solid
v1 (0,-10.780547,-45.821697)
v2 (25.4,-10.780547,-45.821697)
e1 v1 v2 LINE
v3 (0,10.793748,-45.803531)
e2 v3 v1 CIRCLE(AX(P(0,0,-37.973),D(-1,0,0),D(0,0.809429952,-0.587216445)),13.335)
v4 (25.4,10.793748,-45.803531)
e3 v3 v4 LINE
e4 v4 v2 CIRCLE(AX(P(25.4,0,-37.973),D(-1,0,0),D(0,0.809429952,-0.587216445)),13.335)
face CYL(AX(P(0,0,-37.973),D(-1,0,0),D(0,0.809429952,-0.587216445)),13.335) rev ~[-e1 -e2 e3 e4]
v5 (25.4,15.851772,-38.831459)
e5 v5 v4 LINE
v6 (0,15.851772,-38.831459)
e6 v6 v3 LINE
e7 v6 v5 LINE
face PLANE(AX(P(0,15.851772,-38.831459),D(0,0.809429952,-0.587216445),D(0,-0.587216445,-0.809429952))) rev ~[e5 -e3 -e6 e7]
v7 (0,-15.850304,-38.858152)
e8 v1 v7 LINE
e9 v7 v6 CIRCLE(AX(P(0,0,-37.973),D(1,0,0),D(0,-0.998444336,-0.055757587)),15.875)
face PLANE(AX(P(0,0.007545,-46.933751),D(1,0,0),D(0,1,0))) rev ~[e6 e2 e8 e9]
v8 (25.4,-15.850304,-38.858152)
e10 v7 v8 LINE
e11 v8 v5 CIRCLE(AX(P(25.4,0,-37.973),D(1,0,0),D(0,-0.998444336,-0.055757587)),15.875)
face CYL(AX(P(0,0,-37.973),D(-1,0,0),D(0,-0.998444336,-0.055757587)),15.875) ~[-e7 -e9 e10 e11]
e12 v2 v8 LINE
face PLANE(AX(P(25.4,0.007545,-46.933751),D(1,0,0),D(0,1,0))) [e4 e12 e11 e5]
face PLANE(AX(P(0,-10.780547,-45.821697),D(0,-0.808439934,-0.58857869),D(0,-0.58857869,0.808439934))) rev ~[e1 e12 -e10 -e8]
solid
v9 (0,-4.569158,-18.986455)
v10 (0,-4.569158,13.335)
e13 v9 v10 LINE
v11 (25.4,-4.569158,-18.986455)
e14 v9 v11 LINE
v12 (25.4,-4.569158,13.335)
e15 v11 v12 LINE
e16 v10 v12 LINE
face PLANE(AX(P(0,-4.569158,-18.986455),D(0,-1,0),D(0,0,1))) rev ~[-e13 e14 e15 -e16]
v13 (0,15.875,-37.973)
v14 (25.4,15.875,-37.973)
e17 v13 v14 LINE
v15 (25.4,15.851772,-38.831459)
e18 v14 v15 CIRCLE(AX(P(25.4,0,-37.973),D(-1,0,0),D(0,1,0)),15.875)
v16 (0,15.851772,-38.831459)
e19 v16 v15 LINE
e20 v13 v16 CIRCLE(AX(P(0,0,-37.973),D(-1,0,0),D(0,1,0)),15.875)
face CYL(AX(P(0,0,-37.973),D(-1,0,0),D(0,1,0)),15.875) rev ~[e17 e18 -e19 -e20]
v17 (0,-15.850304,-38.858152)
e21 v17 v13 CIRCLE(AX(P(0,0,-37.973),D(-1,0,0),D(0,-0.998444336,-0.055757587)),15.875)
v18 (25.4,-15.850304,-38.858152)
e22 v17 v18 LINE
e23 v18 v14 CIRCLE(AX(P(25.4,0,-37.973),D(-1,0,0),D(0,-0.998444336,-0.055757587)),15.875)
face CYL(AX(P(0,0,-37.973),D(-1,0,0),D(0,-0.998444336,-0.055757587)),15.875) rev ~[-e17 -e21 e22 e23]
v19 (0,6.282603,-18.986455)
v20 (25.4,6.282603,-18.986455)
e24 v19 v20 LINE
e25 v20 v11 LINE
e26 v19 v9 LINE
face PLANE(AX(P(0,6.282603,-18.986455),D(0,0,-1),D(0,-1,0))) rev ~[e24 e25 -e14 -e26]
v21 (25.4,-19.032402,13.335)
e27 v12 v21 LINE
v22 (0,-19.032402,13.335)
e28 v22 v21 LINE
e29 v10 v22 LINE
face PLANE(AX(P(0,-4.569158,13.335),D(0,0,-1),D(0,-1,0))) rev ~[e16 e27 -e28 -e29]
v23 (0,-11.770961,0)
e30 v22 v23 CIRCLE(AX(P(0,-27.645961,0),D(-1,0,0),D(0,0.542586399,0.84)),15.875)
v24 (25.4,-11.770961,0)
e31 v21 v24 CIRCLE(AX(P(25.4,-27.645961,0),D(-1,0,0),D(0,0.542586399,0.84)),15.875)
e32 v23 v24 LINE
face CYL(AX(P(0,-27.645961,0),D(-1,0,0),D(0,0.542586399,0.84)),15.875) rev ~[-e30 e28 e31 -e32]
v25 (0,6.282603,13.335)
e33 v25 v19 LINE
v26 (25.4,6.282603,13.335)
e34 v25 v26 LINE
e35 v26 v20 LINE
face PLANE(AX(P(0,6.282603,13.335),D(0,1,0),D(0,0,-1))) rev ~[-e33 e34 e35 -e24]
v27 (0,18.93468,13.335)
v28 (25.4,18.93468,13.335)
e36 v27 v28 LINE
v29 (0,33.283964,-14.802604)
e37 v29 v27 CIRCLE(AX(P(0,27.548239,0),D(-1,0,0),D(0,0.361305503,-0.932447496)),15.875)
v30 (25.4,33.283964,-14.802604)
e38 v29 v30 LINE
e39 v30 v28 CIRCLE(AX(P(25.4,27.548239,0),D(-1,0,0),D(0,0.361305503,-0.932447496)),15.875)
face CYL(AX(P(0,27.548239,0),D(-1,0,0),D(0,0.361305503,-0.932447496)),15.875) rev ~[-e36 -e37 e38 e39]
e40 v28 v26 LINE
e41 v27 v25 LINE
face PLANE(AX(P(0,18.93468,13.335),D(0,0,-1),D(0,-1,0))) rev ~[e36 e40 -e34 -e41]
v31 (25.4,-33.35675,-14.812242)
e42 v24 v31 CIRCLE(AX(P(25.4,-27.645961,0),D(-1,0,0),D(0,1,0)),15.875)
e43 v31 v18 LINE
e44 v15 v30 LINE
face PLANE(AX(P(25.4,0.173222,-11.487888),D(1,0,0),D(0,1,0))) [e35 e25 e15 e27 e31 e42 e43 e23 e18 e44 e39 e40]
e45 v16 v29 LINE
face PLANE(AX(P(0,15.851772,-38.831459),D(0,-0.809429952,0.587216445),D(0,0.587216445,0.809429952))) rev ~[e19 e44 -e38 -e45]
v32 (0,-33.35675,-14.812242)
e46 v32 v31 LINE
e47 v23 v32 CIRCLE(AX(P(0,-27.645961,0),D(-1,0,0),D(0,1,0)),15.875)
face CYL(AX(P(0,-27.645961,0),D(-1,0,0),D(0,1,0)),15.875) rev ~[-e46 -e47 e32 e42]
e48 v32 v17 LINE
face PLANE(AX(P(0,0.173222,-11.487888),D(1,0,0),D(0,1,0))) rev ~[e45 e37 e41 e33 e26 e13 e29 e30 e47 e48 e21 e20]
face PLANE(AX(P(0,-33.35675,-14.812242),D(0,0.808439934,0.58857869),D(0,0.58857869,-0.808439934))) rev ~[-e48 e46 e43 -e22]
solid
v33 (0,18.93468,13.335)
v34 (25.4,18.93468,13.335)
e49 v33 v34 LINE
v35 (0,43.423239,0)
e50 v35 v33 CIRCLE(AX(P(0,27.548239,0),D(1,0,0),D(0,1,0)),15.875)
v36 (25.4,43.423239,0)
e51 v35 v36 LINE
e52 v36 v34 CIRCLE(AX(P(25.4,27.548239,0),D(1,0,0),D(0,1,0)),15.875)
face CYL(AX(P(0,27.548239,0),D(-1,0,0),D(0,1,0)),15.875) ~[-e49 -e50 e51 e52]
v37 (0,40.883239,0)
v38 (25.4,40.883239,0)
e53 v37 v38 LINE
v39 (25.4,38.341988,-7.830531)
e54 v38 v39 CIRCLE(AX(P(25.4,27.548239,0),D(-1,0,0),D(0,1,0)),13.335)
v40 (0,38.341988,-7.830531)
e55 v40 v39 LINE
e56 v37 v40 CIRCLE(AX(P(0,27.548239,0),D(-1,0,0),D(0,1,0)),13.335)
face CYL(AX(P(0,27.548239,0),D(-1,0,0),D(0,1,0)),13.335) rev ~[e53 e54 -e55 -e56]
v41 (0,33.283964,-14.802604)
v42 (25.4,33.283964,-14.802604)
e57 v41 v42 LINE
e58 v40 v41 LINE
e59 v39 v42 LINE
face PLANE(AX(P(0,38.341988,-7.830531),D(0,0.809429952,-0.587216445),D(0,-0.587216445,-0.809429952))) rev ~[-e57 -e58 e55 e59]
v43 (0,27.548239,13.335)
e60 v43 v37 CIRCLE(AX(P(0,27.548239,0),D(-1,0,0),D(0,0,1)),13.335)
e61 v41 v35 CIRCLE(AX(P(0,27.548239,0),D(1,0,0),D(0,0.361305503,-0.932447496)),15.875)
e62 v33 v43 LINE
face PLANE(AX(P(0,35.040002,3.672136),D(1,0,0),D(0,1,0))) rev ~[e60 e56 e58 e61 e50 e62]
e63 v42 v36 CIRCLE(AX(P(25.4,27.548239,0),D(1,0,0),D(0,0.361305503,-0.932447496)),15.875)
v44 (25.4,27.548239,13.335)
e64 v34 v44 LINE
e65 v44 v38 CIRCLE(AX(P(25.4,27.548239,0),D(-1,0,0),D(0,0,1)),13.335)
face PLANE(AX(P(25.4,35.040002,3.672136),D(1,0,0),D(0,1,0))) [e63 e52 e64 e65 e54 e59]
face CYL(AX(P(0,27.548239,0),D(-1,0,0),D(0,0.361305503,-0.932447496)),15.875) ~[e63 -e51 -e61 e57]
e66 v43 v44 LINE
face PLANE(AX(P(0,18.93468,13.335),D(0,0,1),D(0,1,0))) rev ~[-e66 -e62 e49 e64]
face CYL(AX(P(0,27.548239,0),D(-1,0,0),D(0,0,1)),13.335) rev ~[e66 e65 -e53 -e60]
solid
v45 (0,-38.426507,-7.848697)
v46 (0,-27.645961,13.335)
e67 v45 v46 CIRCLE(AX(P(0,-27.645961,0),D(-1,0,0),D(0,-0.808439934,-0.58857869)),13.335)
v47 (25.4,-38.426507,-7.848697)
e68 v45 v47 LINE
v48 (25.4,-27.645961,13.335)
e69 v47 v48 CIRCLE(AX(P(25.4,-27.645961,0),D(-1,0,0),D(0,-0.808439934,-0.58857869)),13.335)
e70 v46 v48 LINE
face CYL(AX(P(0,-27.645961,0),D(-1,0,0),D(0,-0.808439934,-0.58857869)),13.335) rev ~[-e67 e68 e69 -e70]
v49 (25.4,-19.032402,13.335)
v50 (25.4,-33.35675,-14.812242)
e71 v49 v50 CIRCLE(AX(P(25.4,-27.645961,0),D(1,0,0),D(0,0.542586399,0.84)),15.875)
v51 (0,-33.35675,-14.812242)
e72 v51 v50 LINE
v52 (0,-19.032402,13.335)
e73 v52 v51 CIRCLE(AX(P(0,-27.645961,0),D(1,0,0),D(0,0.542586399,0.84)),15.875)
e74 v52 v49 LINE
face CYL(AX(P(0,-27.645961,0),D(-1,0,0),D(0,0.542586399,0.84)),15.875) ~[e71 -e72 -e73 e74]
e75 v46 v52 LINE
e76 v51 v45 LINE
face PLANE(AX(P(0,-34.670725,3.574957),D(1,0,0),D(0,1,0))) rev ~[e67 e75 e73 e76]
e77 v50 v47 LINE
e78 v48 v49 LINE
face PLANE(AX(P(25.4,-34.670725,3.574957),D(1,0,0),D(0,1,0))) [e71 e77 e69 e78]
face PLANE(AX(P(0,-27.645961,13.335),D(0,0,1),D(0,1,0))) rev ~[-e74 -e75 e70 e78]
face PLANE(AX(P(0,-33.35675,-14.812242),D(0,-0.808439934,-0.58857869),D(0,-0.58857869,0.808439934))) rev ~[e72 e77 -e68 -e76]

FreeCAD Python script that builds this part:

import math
import FreeCAD as App
import Part
import Sketcher
Q = App.Units.Quantity

doc = App.newDocument("Part")
params = doc.addObject("Spreadsheet::Sheet", "Params")
for row, (alias, value) in enumerate([
    ("sketch1_radius", "0.625 in"),
    ("pad1_length", "1 in"),
    ("sketch2_radius", "0.625 in"),
    ("sketch2_radius2", "0.525 in"),
    ("pad2_length", "1 in"),
    ("sketch3_radius", "0.525 in"),
    ("sketch3_radius2", "0.625 in"),
    ("pad3_length", "1 in"),
    ("sketch4_radius", "0.625 in"),
    ("sketch4_radius2", "0.525 in"),
    ("pad4_length", "1 in"),
], start=1):
    params.set(f"A{row}", alias)
    params.set(f"B{row}", "=" + value)
    params.setAlias(f"B{row}", alias)

body = doc.addObject("PartDesign::Body", "Body")

# Sketch on YZ plane
sketch1 = body.newObject("Sketcher::SketchObject", "Sketch")
sketch1.AttachmentSupport = (doc.getObject("YZ_Plane"), [""])
sketch1.MapMode = "FlatFace"
sketch1.addGeometry(Part.LineSegment(App.Vector(-4.6, 13.3, 0), App.Vector(-19, 13.3, 0)), False)
sketch1.addGeometry(Part.ArcOfCircle(Part.Circle(App.Vector(-27.6, 0, 0), App.Vector(0, 0, 1), 15.9), math.radians(0), math.radians(57)), False)
sketch1.addGeometry(Part.ArcOfCircle(Part.Circle(App.Vector(-27.6, 0, 0), App.Vector(0, 0, 1), 15.9), math.radians(-111), math.radians(0)), False)
sketch1.addGeometry(Part.LineSegment(App.Vector(-33.4, -14.8, 0), App.Vector(-15.9, -38.9, 0)), False)
sketch1.addGeometry(Part.ArcOfCircle(Part.Circle(App.Vector(0, -38, 0), App.Vector(0, 0, 1), 15.9), math.radians(0), math.radians(183)), False)
sketch1.addGeometry(Part.ArcOfCircle(Part.Circle(App.Vector(0, -38, 0), App.Vector(0, 0, 1), 15.9), math.radians(-3.1), math.radians(0)), False)
sketch1.addGeometry(Part.LineSegment(App.Vector(15.9, -38.8, 0), App.Vector(33.3, -14.8, 0)), False)
sketch1.addGeometry(Part.ArcOfCircle(Part.Circle(App.Vector(27.5, 0, 0), App.Vector(0, 0, 1), 15.9), math.radians(123), math.radians(291)), False)
sketch1.addGeometry(Part.LineSegment(App.Vector(18.9, 13.3, 0), App.Vector(6.3, 13.3, 0)), False)
sketch1.addGeometry(Part.LineSegment(App.Vector(6.3, 13.3, 0), App.Vector(6.3, -19, 0)), False)
sketch1.addGeometry(Part.LineSegment(App.Vector(6.3, -19, 0), App.Vector(-4.6, -19, 0)), False)
sketch1.addGeometry(Part.LineSegment(App.Vector(-4.6, -19, 0), App.Vector(-4.6, 13.3, 0)), False)
sketch1.addConstraint(Sketcher.Constraint("Coincident", 0, 2, 1, 2))
sketch1.addConstraint(Sketcher.Constraint("Tangent", 1, 1, 2, 2))
sketch1.addConstraint(Sketcher.Constraint("Coincident", 2, 1, 3, 1))
sketch1.addConstraint(Sketcher.Constraint("Coincident", 3, 2, 4, 2))
sketch1.addConstraint(Sketcher.Constraint("Tangent", 4, 1, 5, 2))
sketch1.addConstraint(Sketcher.Constraint("Coincident", 5, 1, 6, 1))
sketch1.addConstraint(Sketcher.Constraint("Coincident", 6, 2, 7, 2))
sketch1.addConstraint(Sketcher.Constraint("Coincident", 7, 1, 8, 1))
sketch1.addConstraint(Sketcher.Constraint("Coincident", 8, 2, 9, 1))
sketch1.addConstraint(Sketcher.Constraint("Coincident", 9, 2, 10, 1))
sketch1.addConstraint(Sketcher.Constraint("Coincident", 10, 2, 11, 1))
sketch1.addConstraint(Sketcher.Constraint("Coincident", 11, 2, 0, 1))
sketch1.addConstraint(Sketcher.Constraint("Horizontal", 0))
sketch1.addConstraint(Sketcher.Constraint("Horizontal", 8))
sketch1.addConstraint(Sketcher.Constraint("Vertical", 9))
sketch1.addConstraint(Sketcher.Constraint("Horizontal", 10))
sketch1.addConstraint(Sketcher.Constraint("Vertical", 11))
sketch1.addConstraint(Sketcher.Constraint("Equal", 1, 2))
sketch1.addConstraint(Sketcher.Constraint("Equal", 2, 4))
sketch1.addConstraint(Sketcher.Constraint("Equal", 4, 5))
sketch1.addConstraint(Sketcher.Constraint("Equal", 5, 7))
sketch1.addConstraint(Sketcher.Constraint("PointOnObject", 1, 3, -1))
sketch1.addConstraint(Sketcher.Constraint("PointOnObject", 4, 3, -2))
sketch1.addConstraint(Sketcher.Constraint("PointOnObject", 7, 3, -1))
sketch1.addConstraint(Sketcher.Constraint("PointOnObject", 1, 1, -1))
sketch1.addConstraint(Sketcher.Constraint("Horizontal", 5, 3, 4, 1))
sketch1.addConstraint(Sketcher.Constraint("Horizontal", 0, 2, 7, 1))
sketch1.addConstraint(Sketcher.Constraint("Radius", 1, Q("0.625 in")))
sketch1.addConstraint(Sketcher.Constraint("DistanceY", 4, 3, 0, 2, Q("2.02 in")))
sketch1.addConstraint(Sketcher.Constraint("DistanceY", 4, 3, -1, 1, Q("1.495 in")))
sketch1.addConstraint(Sketcher.Constraint("DistanceX", 1, 3, 7, 3, Q("2.173 in")))
sketch1.addConstraint(Sketcher.Constraint("DistanceX", 10, 2, 10, 1, 10.851761))
sketch1.addConstraint(Sketcher.Constraint("DistanceX", 0, 2, -1, 1, 19.032402))
sketch1.addConstraint(Sketcher.Constraint("DistanceX", 0, 2, 0, 1, 14.463243))
sketch1.addConstraint(Sketcher.Constraint("DistanceY", 9, 2, 9, 1, 32.321455))
sketch1.addConstraint(Sketcher.Constraint("DistanceX", 2, 1, -1, 1, 33.35675))
sketch1.addConstraint(Sketcher.Constraint("DistanceY", 3, 2, -1, 1, 38.858152))
sketch1.addConstraint(Sketcher.Constraint("DistanceX", -1, 1, 5, 1, 15.851772))
sketch1.addConstraint(Sketcher.Constraint("Distance", 6, 29.686145))
sketch1.setExpression("Constraints[27]", "Params.sketch1_radius")
pad1 = body.newObject("PartDesign::Pad", "Pad")
pad1.Profile = sketch1
pad1.setExpression("Length", "Params.pad1_length")
body2 = doc.addObject("PartDesign::Body", "Body001")

# Sketch on YZ plane
sketch2 = body2.newObject("Sketcher::SketchObject", "Sketch001")
sketch2.AttachmentSupport = (doc.getObject("YZ_Plane001"), [""])
sketch2.MapMode = "FlatFace"
sketch2.addGeometry(Part.LineSegment(App.Vector(-11, -46, 0), App.Vector(-16, -39, 0)), False)
sketch2.addGeometry(Part.ArcOfCircle(Part.Circle(App.Vector(0, -38, 0), App.Vector(0, 0, 1), 16), math.radians(-177), math.radians(-3)), False)
sketch2.addGeometry(Part.LineSegment(App.Vector(16, -39, 0), App.Vector(11, -46, 0)), False)
sketch2.addGeometry(Part.ArcOfCircle(Part.Circle(App.Vector(0, -38, 0), App.Vector(0, 0, 1), 13), math.radians(-144), math.radians(-36)), False)
sketch2.addConstraint(Sketcher.Constraint("Coincident", 0, 2, 1, 1))
sketch2.addConstraint(Sketcher.Constraint("Coincident", 1, 2, 2, 1))
sketch2.addConstraint(Sketcher.Constraint("Tangent", 2, 2, 3, 2))
sketch2.addConstraint(Sketcher.Constraint("Tangent", 3, 1, 0, 1))
sketch2.addConstraint(Sketcher.Constraint("Coincident", 3, 3, 1, 3))
sketch2.addConstraint(Sketcher.Constraint("PointOnObject", 1, 3, -2))
sketch2.addConstraint(Sketcher.Constraint("Radius", 1, Q("0.625 in")))
sketch2.addConstraint(Sketcher.Constraint("Radius", 3, Q("0.525 in")))
sketch2.addConstraint(Sketcher.Constraint("DistanceY", 1, 3, -1, 1, Q("1.495 in")))
sketch2.addConstraint(Sketcher.Constraint("DistanceY", 0, 2, -1, 1, 38.858152))
sketch2.addConstraint(Sketcher.Constraint("DistanceX", -1, 1, 1, 2, 15.851772))
sketch2.setExpression("Constraints[6]", "Params.sketch2_radius")
sketch2.setExpression("Constraints[7]", "Params.sketch2_radius2")
pad2 = body2.newObject("PartDesign::Pad", "Pad001")
pad2.Profile = sketch2
pad2.setExpression("Length", "Params.pad2_length")
body3 = doc.addObject("PartDesign::Body", "Body002")

# Sketch on YZ plane
sketch3 = body3.newObject("Sketcher::SketchObject", "Sketch002")
sketch3.AttachmentSupport = (doc.getObject("YZ_Plane002"), [""])
sketch3.MapMode = "FlatFace"
sketch3.addGeometry(Part.ArcOfCircle(Part.Circle(App.Vector(-28, 0, 0), App.Vector(0, 0, 1), 13), math.radians(90), math.radians(216)), False)
sketch3.addGeometry(Part.LineSegment(App.Vector(-28, 13, 0), App.Vector(-19, 13, 0)), False)
sketch3.addGeometry(Part.ArcOfCircle(Part.Circle(App.Vector(-28, 0, 0), App.Vector(0, 0, 1), 16), math.radians(57), math.radians(249)), False)
sketch3.addGeometry(Part.LineSegment(App.Vector(-33, -15, 0), App.Vector(-38, -8, 0)), False)
sketch3.addConstraint(Sketcher.Constraint("Tangent", 0, 1, 1, 1))
sketch3.addConstraint(Sketcher.Constraint("Coincident", 1, 2, 2, 1))
sketch3.addConstraint(Sketcher.Constraint("Coincident", 2, 2, 3, 1))
sketch3.addConstraint(Sketcher.Constraint("Tangent", 3, 2, 0, 2))
sketch3.addConstraint(Sketcher.Constraint("Horizontal", 1))
sketch3.addConstraint(Sketcher.Constraint("Coincident", 2, 3, 0, 3))
sketch3.addConstraint(Sketcher.Constraint("PointOnObject", 0, 3, -1))
sketch3.addConstraint(Sketcher.Constraint("Radius", 0, Q("0.525 in")))
sketch3.addConstraint(Sketcher.Constraint("Radius", 2, Q("0.625 in")))
sketch3.addConstraint(Sketcher.Constraint("DistanceX", 1, 2, -1, 1, 19.032402))
sketch3.addConstraint(Sketcher.Constraint("DistanceX", 2, 2, -1, 1, 33.35675))
sketch3.setExpression("Constraints[7]", "Params.sketch3_radius")
sketch3.setExpression("Constraints[8]", "Params.sketch3_radius2")
pad3 = body3.newObject("PartDesign::Pad", "Pad002")
pad3.Profile = sketch3
pad3.setExpression("Length", "Params.pad3_length")
body4 = doc.addObject("PartDesign::Body", "Body003")

# Sketch on YZ plane
sketch4 = body4.newObject("Sketcher::SketchObject", "Sketch003")
sketch4.AttachmentSupport = (doc.getObject("YZ_Plane003"), [""])
sketch4.MapMode = "FlatFace"
sketch4.addGeometry(Part.ArcOfCircle(Part.Circle(App.Vector(28, 0, 0), App.Vector(0, 0, 1), 16), math.radians(0), math.radians(123)), False)
sketch4.addGeometry(Part.LineSegment(App.Vector(19, 13, 0), App.Vector(28, 13, 0)), False)
sketch4.addGeometry(Part.ArcOfCircle(Part.Circle(App.Vector(28, 0, 0), App.Vector(0, 0, 1), 13), math.radians(0), math.radians(90)), False)
sketch4.addGeometry(Part.ArcOfCircle(Part.Circle(App.Vector(28, 0, 0), App.Vector(0, 0, 1), 13), math.radians(-36), math.radians(0)), False)
sketch4.addGeometry(Part.LineSegment(App.Vector(38, -8, 0), App.Vector(33, -15, 0)), False)
sketch4.addGeometry(Part.ArcOfCircle(Part.Circle(App.Vector(28, 0, 0), App.Vector(0, 0, 1), 16), math.radians(-69), math.radians(0)), False)
sketch4.addConstraint(Sketcher.Constraint("Coincident", 0, 2, 1, 1))
sketch4.addConstraint(Sketcher.Constraint("Tangent", 1, 2, 2, 2))
sketch4.addConstraint(Sketcher.Constraint("Tangent", 2, 1, 3, 2))
sketch4.addConstraint(Sketcher.Constraint("Tangent", 3, 1, 4, 1))
sketch4.addConstraint(Sketcher.Constraint("Coincident", 4, 2, 5, 1))
sketch4.addConstraint(Sketcher.Constraint("Tangent", 5, 2, 0, 1))
sketch4.addConstraint(Sketcher.Constraint("Horizontal", 1))
sketch4.addConstraint(Sketcher.Constraint("Coincident", 2, 3, 0, 3))
sketch4.addConstraint(Sketcher.Constraint("Equal", 2, 3))
sketch4.addConstraint(Sketcher.Constraint("Equal", 0, 5))
sketch4.addConstraint(Sketcher.Constraint("PointOnObject", 0, 3, -1))
sketch4.addConstraint(Sketcher.Constraint("PointOnObject", 2, 1, -1))
sketch4.addConstraint(Sketcher.Constraint("PointOnObject", 5, 2, -1))
sketch4.addConstraint(Sketcher.Constraint("Radius", 0, Q("0.625 in")))
sketch4.addConstraint(Sketcher.Constraint("Radius", 2, Q("0.525 in")))
sketch4.addConstraint(Sketcher.Constraint("DistanceX", -1, 1, 0, 3, 27.548239))
sketch4.addConstraint(Sketcher.Constraint("DistanceY", 3, 1, -1, 1, 7.830531))
sketch4.setExpression("Constraints[13]", "Params.sketch4_radius")
sketch4.setExpression("Constraints[14]", "Params.sketch4_radius2")
pad4 = body4.newObject("PartDesign::Pad", "Pad003")
pad4.Profile = sketch4
pad4.setExpression("Length", "Params.pad4_length")

doc.recompute()
